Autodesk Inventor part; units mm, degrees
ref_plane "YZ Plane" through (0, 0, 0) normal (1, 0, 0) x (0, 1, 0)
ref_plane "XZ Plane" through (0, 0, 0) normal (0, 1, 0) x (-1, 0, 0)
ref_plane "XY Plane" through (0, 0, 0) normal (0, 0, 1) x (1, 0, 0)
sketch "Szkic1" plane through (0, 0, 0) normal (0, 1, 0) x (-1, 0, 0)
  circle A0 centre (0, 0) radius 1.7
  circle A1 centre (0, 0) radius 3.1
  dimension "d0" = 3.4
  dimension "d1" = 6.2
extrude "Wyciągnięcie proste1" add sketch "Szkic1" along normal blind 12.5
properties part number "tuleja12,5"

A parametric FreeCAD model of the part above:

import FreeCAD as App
import Part
import Sketcher
Q = App.Units.Quantity

doc = App.newDocument("Part")
params = doc.addObject("Spreadsheet::Sheet", "Params")
for row, (alias, value) in enumerate([
    ("sketch1_diameter", "6.2 mm"),
    ("sketch1_diameter2", "3.4 mm"),
    ("pad1_length", "12.5 mm"),
], start=1):
    params.set(f"A{row}", alias)
    params.set(f"B{row}", "=" + value)
    params.setAlias(f"B{row}", alias)

body = doc.addObject("PartDesign::Body", "Body")

# Sketch on XZ plane
sketch1 = body.newObject("Sketcher::SketchObject", "Sketch")
sketch1.AttachmentSupport = (doc.getObject("XZ_Plane"), [""])
sketch1.MapMode = "FlatFace"
sketch1.addGeometry(Part.Circle(App.Vector(0, 0, 0), App.Vector(0, 0, 1), 3.1), False)
sketch1.addGeometry(Part.Circle(App.Vector(0, 0, 0), App.Vector(0, 0, 1), 1.7), False)
sketch1.addConstraint(Sketcher.Constraint("Coincident", 0, 3, -1, 1))
sketch1.addConstraint(Sketcher.Constraint("Coincident", 1, 3, -1, 1))
sketch1.addConstraint(Sketcher.Constraint("Diameter", 0, Q("6.2 mm")))
sketch1.addConstraint(Sketcher.Constraint("Diameter", 1, Q("3.4 mm")))
sketch1.setExpression("Constraints[2]", "Params.sketch1_diameter")
sketch1.setExpression("Constraints[3]", "Params.sketch1_diameter2")
pad1 = body.newObject("PartDesign::Pad", "Pad")
pad1.Profile = sketch1
pad1.setExpression("Length", "Params.pad1_length")
pad1.Reversed = True

doc.recompute()
